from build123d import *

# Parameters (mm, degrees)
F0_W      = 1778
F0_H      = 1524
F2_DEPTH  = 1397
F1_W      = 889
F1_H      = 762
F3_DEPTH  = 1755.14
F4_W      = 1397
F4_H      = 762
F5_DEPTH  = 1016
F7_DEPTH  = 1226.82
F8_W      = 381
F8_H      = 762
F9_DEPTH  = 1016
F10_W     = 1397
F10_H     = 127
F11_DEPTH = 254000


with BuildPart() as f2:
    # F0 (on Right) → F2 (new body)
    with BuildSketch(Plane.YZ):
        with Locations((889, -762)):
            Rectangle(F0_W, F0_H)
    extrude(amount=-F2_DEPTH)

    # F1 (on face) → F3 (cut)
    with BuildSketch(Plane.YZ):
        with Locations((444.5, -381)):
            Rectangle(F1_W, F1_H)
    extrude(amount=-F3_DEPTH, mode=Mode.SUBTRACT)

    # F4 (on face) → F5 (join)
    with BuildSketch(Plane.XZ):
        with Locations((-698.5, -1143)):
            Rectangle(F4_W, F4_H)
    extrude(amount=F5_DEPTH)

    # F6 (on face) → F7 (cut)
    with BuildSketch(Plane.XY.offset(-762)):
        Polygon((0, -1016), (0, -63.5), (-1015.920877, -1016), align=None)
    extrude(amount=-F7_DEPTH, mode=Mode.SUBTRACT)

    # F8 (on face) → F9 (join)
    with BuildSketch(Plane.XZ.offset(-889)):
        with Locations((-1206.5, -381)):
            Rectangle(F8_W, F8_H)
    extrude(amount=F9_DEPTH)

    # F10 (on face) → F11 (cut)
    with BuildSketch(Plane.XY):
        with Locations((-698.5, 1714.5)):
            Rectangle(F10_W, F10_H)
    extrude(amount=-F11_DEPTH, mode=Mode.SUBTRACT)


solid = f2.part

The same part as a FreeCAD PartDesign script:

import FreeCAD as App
import Part
import Sketcher
Q = App.Units.Quantity

doc = App.newDocument("Part")
body = doc.addObject("PartDesign::Body", "Body")

sketch1 = body.newObject("Sketcher::SketchObject", "Sketch")
sketch1.AttachmentSupport = (doc.getObject("YZ_Plane"), [""])
sketch1.MapMode = "FlatFace"
sketch1.addGeometry(Part.LineSegment(App.Vector(0, 0, 0), App.Vector(0, -1524, 0)), False)
sketch1.addGeometry(Part.LineSegment(App.Vector(0, -1524, 0), App.Vector(1778, -1524, 0)), False)
sketch1.addGeometry(Part.LineSegment(App.Vector(1778, -1524, 0), App.Vector(1778, 0, 0)), False)
sketch1.addGeometry(Part.LineSegment(App.Vector(1778, 0, 0), App.Vector(0, 0, 0)), False)
sketch1.addConstraint(Sketcher.Constraint("Coincident", 0, 2, 1, 1))
sketch1.addConstraint(Sketcher.Constraint("Coincident", 1, 2, 2, 1))
sketch1.addConstraint(Sketcher.Constraint("Coincident", 2, 2, 3, 1))
sketch1.addConstraint(Sketcher.Constraint("Coincident", 3, 2, 0, 1))
sketch1.addConstraint(Sketcher.Constraint("Vertical", 0))
sketch1.addConstraint(Sketcher.Constraint("Horizontal", 1))
sketch1.addConstraint(Sketcher.Constraint("Vertical", 2))
sketch1.addConstraint(Sketcher.Constraint("Horizontal", 3))
sketch1.addConstraint(Sketcher.Constraint("Coincident", 3, 2, -1, 1))
sketch1.addConstraint(Sketcher.Constraint("DistanceX", 1, 1, 1, 2, Q("70 in")))
sketch1.addConstraint(Sketcher.Constraint("DistanceY", 0, 2, 0, 1, Q("60 in")))
pad1 = body.newObject("PartDesign::Pad", "Pad")
pad1.Profile = sketch1
pad1.Length = Q("55 in")
pad1.Reversed = True

sketch2 = body.newObject("Sketcher::SketchObject", "Sketch001")
sketch2.AttachmentSupport = (doc.getObject("YZ_Plane"), [""])
sketch2.MapMode = "FlatFace"
sketch2.addGeometry(Part.LineSegment(App.Vector(0, 0, 0), App.Vector(0, -762, 0)), False)
sketch2.addGeometry(Part.LineSegment(App.Vector(0, -762, 0), App.Vector(889, -762, 0)), False)
sketch2.addGeometry(Part.LineSegment(App.Vector(889, -762, 0), App.Vector(889, 0, 0)), False)
sketch2.addGeometry(Part.LineSegment(App.Vector(889, 0, 0), App.Vector(0, 0, 0)), False)
sketch2.addConstraint(Sketcher.Constraint("Coincident", 0, 2, 1, 1))
sketch2.addConstraint(Sketcher.Constraint("Coincident", 1, 2, 2, 1))
sketch2.addConstraint(Sketcher.Constraint("Coincident", 2, 2, 3, 1))
sketch2.addConstraint(Sketcher.Constraint("Coincident", 3, 2, 0, 1))
sketch2.addConstraint(Sketcher.Constraint("Vertical", 0))
sketch2.addConstraint(Sketcher.Constraint("Horizontal", 1))
sketch2.addConstraint(Sketcher.Constraint("Vertical", 2))
sketch2.addConstraint(Sketcher.Constraint("Horizontal", 3))
sketch2.addConstraint(Sketcher.Constraint("Coincident", 3, 2, -1, 1))
sketch2.addConstraint(Sketcher.Constraint("DistanceX", 1, 1, 1, 2, Q("35 in")))
sketch2.addConstraint(Sketcher.Constraint("DistanceY", 0, 2, 0, 1, Q("30 in")))
pocket1 = body.newObject("PartDesign::Pocket", "Pocket")
pocket1.Profile = sketch2
pocket1.Length = Q("69.1 in")

sketch3 = body.newObject("Sketcher::SketchObject", "Sketch002")
sketch3.AttachmentSupport = (doc.getObject("XZ_Plane"), [""])
sketch3.MapMode = "FlatFace"
sketch3.addGeometry(Part.LineSegment(App.Vector(-1397, -762, 0), App.Vector(-1397, -1524, 0)), False)
sketch3.addGeometry(Part.LineSegment(App.Vector(-1397, -1524, 0), App.Vector(0, -1524, 0)), False)
sketch3.addGeometry(Part.LineSegment(App.Vector(0, -1524, 0), App.Vector(0, -762, 0)), False)
sketch3.addGeometry(Part.LineSegment(App.Vector(0, -762, 0), App.Vector(-1397, -762, 0)), False)
sketch3.addConstraint(Sketcher.Constraint("Coincident", 0, 2, 1, 1))
sketch3.addConstraint(Sketcher.Constraint("Coincident", 1, 2, 2, 1))
sketch3.addConstraint(Sketcher.Constraint("Coincident", 2, 2, 3, 1))
sketch3.addConstraint(Sketcher.Constraint("Coincident", 3, 2, 0, 1))
sketch3.addConstraint(Sketcher.Constraint("Vertical", 0))
sketch3.addConstraint(Sketcher.Constraint("Horizontal", 1))
sketch3.addConstraint(Sketcher.Constraint("Vertical", 2))
sketch3.addConstraint(Sketcher.Constraint("Horizontal", 3))
sketch3.addConstraint(Sketcher.Constraint("PointOnObject", 1, 2, -2))
sketch3.addConstraint(Sketcher.Constraint("DistanceX", 1, 1, 1, 2, Q("55 in")))
sketch3.addConstraint(Sketcher.Constraint("DistanceY", 0, 2, 0, 1, Q("30 in")))
sketch3.addConstraint(Sketcher.Constraint("DistanceY", 0, 2, -1, 1, Q("60 in")))
pad2 = body.newObject("PartDesign::Pad", "Pad001")
pad2.Profile = sketch3
pad2.Length = Q("40 in")

sketch4 = body.newObject("Sketcher::SketchObject", "Sketch003")
sketch4.AttachmentSupport = (doc.getObject("XY_Plane"), [""])
sketch4.MapMode = "FlatFace"
sketch4.AttachmentOffset = App.Placement(App.Vector(0, 0, -30 * 25.4), App.Rotation())
sketch4.addGeometry(Part.LineSegment(App.Vector(0, -1016, 0), App.Vector(0, -64, 0)), False)
sketch4.addGeometry(Part.LineSegment(App.Vector(0, -64, 0), App.Vector(-1016, -1016, 0)), False)
sketch4.addGeometry(Part.LineSegment(App.Vector(-1016, -1016, 0), App.Vector(0, -1016, 0)), False)
sketch4.addConstraint(Sketcher.Constraint("Coincident", 0, 2, 1, 1))
sketch4.addConstraint(Sketcher.Constraint("Coincident", 1, 2, 2, 1))
sketch4.addConstraint(Sketcher.Constraint("Coincident", 2, 2, 0, 1))
sketch4.addConstraint(Sketcher.Constraint("Vertical", 0))
sketch4.addConstraint(Sketcher.Constraint("Horizontal", 2))
sketch4.addConstraint(Sketcher.Constraint("PointOnObject", 0, 2, -2))
sketch4.addConstraint(Sketcher.Constraint("DistanceY", 0, 1, 0, 2, Q("37.5 in")))
sketch4.addConstraint(Sketcher.Constraint("DistanceY", 1, 2, -1, 1, Q("40 in")))
sketch4.addConstraint(Sketcher.Constraint("DistanceX", 2, 1, 2, 2, Q("1015.920877 mm")))
pocket2 = body.newObject("PartDesign::Pocket", "Pocket001")
pocket2.Profile = sketch4
pocket2.Length = Q("48.3 in")

sketch5 = body.newObject("Sketcher::SketchObject", "Sketch004")
sketch5.AttachmentSupport = (doc.getObject("XZ_Plane"), [""])
sketch5.MapMode = "FlatFace"
sketch5.AttachmentOffset = App.Placement(App.Vector(0, 0, -35 * 25.4), App.Rotation())
sketch5.addGeometry(Part.LineSegment(App.Vector(-1397, 0, 0), App.Vector(-1397, -762, 0)), False)
sketch5.addGeometry(Part.LineSegment(App.Vector(-1397, -762, 0), App.Vector(-1016, -762, 0)), False)
sketch5.addGeometry(Part.LineSegment(App.Vector(-1016, -762, 0), App.Vector(-1016, 0, 0)), False)
sketch5.addGeometry(Part.LineSegment(App.Vector(-1016, 0, 0), App.Vector(-1397, 0, 0)), False)
sketch5.addConstraint(Sketcher.Constraint("Coincident", 0, 2, 1, 1))
sketch5.addConstraint(Sketcher.Constraint("Coincident", 1, 2, 2, 1))
sketch5.addConstraint(Sketcher.Constraint("Coincident", 2, 2, 3, 1))
sketch5.addConstraint(Sketcher.Constraint("Coincident", 3, 2, 0, 1))
sketch5.addConstraint(Sketcher.Constraint("Vertical", 0))
sketch5.addConstraint(Sketcher.Constraint("Horizontal", 1))
sketch5.addConstraint(Sketcher.Constraint("Vertical", 2))
sketch5.addConstraint(Sketcher.Constraint("Horizontal", 3))
sketch5.addConstraint(Sketcher.Constraint("PointOnObject", 2, 2, -1))
sketch5.addConstraint(Sketcher.Constraint("DistanceX", 1, 1, 1, 2, Q("15 in")))
sketch5.addConstraint(Sketcher.Constraint("DistanceY", 0, 2, 0, 1, Q("30 in")))
sketch5.addConstraint(Sketcher.Constraint("DistanceX", 0, 2, -1, 1, Q("55 in")))
pad3 = body.newObject("PartDesign::Pad", "Pad002")
pad3.Profile = sketch5
pad3.Length = Q("40 in")

sketch6 = body.newObject("Sketcher::SketchObject", "Sketch005")
sketch6.AttachmentSupport = (doc.getObject("XY_Plane"), [""])
sketch6.MapMode = "FlatFace"
sketch6.addGeometry(Part.LineSegment(App.Vector(-1397, 1778, 0), App.Vector(-1397, 1651, 0)), False)
sketch6.addGeometry(Part.LineSegment(App.Vector(-1397, 1651, 0), App.Vector(0, 1651, 0)), False)
sketch6.addGeometry(Part.LineSegment(App.Vector(0, 1651, 0), App.Vector(0, 1778, 0)), False)
sketch6.addGeometry(Part.LineSegment(App.Vector(0, 1778, 0), App.Vector(-1397, 1778, 0)), False)
sketch6.addConstraint(Sketcher.Constraint("Coincident", 0, 2, 1, 1))
sketch6.addConstraint(Sketcher.Constraint("Coincident", 1, 2, 2, 1))
sketch6.addConstraint(Sketcher.Constraint("Coincident", 2, 2, 3, 1))
sketch6.addConstraint(Sketcher.Constraint("Coincident", 3, 2, 0, 1))
sketch6.addConstraint(Sketcher.Constraint("Vertical", 0))
sketch6.addConstraint(Sketcher.Constraint("Horizontal", 1))
sketch6.addConstraint(Sketcher.Constraint("Vertical", 2))
sketch6.addConstraint(Sketcher.Constraint("Horizontal", 3))
sketch6.addConstraint(Sketcher.Constraint("PointOnObject", 1, 2, -2))
sketch6.addConstraint(Sketcher.Constraint("DistanceX", 1, 1, 1, 2, Q("55 in")))
sketch6.addConstraint(Sketcher.Constraint("DistanceY", 0, 2, 0, 1, Q("5 in")))
sketch6.addConstraint(Sketcher.Constraint("DistanceY", -1, 1, 0, 2, Q("65 in")))
pocket3 = body.newObject("PartDesign::Pocket", "Pocket002")
pocket3.Profile = sketch6
pocket3.Length = Q("10000 in")

doc.recompute()
